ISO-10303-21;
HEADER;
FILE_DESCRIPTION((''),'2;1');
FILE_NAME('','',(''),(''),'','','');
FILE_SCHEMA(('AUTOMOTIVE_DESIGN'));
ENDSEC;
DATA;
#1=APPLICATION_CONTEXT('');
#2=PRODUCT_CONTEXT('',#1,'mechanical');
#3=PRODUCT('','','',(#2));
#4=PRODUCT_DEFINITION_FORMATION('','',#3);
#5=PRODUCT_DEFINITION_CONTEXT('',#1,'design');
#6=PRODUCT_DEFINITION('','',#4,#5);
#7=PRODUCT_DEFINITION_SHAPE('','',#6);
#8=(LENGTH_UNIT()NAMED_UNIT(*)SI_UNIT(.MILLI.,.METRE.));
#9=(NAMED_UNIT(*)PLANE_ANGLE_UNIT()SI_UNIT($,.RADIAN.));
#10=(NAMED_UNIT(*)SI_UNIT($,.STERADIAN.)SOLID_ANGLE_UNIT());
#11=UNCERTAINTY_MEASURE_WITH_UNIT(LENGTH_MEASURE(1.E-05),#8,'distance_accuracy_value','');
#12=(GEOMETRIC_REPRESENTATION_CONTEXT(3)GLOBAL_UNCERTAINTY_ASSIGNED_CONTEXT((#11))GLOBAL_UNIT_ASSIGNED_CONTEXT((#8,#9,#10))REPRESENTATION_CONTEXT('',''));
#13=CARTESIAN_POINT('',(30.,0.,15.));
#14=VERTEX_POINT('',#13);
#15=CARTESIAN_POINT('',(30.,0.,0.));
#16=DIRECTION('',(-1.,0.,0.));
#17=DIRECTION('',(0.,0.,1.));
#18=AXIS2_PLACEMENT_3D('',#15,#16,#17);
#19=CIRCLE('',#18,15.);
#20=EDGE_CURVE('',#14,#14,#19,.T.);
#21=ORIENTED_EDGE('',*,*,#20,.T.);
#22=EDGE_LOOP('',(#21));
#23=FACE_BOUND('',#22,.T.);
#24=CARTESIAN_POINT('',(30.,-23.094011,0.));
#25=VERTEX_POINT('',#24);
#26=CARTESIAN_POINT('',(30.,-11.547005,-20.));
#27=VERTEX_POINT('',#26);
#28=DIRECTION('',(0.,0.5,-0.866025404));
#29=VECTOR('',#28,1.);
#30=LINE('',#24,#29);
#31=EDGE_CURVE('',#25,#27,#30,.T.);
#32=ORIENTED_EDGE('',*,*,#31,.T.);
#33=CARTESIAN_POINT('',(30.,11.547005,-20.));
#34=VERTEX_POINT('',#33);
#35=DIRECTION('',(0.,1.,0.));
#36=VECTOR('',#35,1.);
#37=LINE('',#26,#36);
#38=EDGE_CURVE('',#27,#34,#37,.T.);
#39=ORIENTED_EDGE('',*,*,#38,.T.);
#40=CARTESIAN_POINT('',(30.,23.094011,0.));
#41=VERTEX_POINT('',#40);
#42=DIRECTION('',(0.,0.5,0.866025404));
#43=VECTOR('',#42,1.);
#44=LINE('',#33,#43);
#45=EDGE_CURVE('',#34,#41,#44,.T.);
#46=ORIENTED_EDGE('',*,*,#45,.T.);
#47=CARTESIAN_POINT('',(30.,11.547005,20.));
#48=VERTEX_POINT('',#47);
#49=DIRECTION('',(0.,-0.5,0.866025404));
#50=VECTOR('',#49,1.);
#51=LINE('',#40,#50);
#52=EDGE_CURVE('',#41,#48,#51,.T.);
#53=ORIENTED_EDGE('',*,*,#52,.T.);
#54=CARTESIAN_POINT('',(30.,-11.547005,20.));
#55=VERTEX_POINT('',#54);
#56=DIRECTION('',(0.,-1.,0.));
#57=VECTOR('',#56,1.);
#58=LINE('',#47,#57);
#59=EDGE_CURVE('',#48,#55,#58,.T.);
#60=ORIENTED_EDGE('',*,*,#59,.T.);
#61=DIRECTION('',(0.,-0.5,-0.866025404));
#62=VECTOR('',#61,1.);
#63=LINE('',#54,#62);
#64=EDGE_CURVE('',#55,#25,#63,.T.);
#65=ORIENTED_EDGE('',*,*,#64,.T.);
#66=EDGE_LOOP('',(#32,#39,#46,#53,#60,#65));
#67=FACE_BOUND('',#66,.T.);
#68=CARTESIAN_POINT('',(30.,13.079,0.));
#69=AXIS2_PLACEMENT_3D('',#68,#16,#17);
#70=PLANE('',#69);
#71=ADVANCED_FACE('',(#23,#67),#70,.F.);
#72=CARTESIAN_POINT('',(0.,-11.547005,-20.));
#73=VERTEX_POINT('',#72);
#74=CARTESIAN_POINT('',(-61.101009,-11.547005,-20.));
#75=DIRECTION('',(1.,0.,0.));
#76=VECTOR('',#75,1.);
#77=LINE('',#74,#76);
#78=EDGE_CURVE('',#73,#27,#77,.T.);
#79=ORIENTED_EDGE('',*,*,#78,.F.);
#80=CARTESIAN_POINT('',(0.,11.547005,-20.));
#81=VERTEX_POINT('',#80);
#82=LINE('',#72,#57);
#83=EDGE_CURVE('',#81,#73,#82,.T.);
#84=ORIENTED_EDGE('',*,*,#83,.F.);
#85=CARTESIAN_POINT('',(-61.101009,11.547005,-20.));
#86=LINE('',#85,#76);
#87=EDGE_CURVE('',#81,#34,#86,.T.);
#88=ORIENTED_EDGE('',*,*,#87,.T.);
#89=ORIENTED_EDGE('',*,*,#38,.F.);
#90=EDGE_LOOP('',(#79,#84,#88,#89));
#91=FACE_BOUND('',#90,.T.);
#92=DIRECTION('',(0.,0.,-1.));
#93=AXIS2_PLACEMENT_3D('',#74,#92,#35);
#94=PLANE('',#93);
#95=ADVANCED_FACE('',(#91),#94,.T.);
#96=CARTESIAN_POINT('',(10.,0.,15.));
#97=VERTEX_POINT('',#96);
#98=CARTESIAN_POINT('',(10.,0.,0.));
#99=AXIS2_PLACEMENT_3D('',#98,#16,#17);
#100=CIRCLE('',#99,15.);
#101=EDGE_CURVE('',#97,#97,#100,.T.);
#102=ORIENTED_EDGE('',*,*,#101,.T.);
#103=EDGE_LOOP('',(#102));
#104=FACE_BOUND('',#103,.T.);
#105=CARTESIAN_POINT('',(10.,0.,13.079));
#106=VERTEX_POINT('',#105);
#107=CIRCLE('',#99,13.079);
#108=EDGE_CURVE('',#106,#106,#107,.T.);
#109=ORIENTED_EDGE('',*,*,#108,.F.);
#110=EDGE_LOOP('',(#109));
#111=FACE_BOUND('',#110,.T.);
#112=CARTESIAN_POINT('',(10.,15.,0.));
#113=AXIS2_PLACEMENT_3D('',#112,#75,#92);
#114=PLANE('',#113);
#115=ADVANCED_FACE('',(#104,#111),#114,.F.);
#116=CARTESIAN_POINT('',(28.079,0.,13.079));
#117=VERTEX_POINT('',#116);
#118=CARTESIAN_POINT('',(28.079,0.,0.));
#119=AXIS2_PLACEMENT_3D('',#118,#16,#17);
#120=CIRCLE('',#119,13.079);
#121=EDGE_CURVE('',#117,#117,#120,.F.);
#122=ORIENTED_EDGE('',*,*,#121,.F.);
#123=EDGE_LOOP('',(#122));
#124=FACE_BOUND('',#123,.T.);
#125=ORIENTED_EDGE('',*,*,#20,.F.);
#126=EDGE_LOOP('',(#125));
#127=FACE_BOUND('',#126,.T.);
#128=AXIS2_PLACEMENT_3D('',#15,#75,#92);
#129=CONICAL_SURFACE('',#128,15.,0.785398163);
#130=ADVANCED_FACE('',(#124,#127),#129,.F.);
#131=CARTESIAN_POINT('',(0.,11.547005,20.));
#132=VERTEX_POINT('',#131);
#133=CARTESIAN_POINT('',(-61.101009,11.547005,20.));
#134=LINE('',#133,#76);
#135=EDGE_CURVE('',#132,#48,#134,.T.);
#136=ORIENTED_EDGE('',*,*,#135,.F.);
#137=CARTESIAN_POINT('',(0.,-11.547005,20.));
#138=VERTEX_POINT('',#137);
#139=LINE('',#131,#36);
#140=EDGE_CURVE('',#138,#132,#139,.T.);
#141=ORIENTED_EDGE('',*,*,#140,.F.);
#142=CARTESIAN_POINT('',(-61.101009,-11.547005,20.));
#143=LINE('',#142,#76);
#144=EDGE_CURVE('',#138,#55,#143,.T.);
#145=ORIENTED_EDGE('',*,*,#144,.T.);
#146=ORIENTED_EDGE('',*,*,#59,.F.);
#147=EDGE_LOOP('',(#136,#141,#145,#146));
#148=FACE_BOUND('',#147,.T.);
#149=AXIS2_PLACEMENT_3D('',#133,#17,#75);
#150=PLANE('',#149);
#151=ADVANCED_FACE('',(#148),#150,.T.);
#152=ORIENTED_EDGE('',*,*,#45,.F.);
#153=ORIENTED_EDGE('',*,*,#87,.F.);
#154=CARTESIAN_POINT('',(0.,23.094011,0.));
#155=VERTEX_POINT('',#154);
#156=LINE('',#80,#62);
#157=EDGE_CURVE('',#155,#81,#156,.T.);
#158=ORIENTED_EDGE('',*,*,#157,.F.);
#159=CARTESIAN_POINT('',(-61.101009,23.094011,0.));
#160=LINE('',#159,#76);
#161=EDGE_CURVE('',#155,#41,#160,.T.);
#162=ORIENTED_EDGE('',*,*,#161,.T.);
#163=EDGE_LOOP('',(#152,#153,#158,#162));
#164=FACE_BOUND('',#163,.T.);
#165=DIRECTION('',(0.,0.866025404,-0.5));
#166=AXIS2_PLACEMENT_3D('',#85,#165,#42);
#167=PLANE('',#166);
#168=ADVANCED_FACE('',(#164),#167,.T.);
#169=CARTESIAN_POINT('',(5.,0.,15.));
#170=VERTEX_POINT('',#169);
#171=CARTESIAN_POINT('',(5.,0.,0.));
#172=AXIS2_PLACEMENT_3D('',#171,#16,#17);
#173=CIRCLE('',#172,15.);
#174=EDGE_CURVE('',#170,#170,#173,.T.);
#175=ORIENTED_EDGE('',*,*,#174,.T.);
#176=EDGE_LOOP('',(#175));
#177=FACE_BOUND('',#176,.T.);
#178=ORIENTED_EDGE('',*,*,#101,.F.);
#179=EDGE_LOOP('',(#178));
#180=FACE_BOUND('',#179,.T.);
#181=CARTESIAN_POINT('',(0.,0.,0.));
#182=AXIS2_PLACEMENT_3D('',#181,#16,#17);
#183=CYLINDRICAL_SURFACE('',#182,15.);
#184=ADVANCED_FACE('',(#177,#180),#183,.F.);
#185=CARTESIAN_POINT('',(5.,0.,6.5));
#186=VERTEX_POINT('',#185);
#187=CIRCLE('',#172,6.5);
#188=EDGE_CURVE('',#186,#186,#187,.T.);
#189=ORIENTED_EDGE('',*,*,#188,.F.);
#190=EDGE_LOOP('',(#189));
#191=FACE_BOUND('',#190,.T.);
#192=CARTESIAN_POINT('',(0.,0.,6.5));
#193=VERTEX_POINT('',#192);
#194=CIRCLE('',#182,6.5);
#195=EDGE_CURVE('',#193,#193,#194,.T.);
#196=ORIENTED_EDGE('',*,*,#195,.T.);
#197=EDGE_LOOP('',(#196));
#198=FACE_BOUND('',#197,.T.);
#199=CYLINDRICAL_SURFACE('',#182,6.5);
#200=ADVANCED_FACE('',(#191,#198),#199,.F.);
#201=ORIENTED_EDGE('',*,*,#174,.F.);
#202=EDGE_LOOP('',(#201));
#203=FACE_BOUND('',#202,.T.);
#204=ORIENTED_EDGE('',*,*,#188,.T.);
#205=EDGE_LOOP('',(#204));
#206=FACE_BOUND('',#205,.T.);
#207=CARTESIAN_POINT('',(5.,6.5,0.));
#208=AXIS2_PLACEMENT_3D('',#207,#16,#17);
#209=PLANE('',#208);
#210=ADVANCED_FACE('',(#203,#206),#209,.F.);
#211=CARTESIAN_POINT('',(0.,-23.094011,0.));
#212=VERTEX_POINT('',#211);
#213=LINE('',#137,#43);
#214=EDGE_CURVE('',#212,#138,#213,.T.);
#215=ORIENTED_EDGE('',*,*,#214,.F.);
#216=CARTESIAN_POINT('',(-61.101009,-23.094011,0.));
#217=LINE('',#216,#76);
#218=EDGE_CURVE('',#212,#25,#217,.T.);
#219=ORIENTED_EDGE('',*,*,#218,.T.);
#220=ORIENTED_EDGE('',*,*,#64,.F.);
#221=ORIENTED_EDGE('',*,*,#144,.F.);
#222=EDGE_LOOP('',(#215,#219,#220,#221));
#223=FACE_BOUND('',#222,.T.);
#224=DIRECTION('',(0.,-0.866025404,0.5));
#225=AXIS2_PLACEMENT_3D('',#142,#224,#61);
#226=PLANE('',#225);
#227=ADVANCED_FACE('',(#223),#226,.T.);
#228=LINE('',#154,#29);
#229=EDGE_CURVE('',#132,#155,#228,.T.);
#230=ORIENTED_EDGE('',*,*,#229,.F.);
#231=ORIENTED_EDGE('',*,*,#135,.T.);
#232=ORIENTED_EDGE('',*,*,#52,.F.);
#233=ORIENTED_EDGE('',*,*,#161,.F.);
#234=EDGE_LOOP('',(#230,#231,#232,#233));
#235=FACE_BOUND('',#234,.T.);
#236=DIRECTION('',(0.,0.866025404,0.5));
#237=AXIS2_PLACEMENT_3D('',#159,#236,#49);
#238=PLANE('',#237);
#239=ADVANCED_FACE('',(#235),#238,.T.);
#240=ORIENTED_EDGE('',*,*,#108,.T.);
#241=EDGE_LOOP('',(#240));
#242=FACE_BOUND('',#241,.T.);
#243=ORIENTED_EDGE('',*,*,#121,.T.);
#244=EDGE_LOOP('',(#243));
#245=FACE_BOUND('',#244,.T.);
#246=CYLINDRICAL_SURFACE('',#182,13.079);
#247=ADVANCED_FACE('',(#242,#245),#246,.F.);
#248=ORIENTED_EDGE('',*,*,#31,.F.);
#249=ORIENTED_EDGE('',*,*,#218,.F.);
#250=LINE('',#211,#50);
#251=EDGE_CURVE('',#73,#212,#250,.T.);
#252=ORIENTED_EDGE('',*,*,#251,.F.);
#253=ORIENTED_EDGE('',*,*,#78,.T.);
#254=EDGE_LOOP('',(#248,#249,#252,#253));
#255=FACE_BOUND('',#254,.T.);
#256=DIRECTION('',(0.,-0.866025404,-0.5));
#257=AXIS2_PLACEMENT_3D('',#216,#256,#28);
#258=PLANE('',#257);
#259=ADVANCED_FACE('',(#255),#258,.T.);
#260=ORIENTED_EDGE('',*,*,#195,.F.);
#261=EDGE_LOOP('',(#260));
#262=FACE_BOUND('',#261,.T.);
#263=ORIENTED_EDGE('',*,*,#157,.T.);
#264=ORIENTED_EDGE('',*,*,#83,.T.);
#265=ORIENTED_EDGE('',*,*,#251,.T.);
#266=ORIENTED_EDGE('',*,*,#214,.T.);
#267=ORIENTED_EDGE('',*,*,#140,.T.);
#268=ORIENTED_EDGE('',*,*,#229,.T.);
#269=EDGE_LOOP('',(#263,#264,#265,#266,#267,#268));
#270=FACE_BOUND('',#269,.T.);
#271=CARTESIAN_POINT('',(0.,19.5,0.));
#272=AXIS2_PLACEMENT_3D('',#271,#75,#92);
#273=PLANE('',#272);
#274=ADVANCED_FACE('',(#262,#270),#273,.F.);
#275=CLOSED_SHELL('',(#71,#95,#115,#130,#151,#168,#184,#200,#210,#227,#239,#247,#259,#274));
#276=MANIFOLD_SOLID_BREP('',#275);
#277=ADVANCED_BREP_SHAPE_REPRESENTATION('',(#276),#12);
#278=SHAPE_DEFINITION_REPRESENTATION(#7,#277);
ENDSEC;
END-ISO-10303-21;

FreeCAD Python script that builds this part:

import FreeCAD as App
import Part
import Sketcher
Q = App.Units.Quantity


def edges_at(feature, points):
    """Names of the edges that pass closest to the given points."""
    edges = feature.Shape.Edges
    near = lambda p: min(range(len(edges)), key=lambda i: edges[i].distToShape(Part.Vertex(*p))[0])
    return sorted({f"Edge{near(p) + 1}" for p in points})


def add_polygon(sketch, points):
    """Adds a closed chain of lines whose ends are joined by coincident constraints."""
    first, n = sketch.GeometryCount, len(points)
    for a, b in zip(points, points[1:] + points[:1]):
        sketch.addGeometry(Part.LineSegment(App.Vector(*a, 0), App.Vector(*b, 0)), False)
    for i in range(n):
        sketch.addConstraint(Sketcher.Constraint("Coincident", first + i, 2, first + (i + 1) % n, 1))

doc = App.newDocument("Part")
body = doc.addObject("PartDesign::Body", "Body")

# Sketch on XY plane
sketch1 = body.newObject("Sketcher::SketchObject", "Sketch")
sketch1.AttachmentSupport = (doc.getObject("XY_Plane"), [""])
sketch1.MapMode = "FlatFace"
add_polygon(sketch1, [(0, 6.5), (5, 6.5), (5, 15), (10, 15), (10, 13.1), (30, 13.1), (30, 19.5), (0, 19.5)])  # lines 0-7
sketch1.addConstraint([
    Sketcher.Constraint("Horizontal", 0),
    Sketcher.Constraint("Vertical", 1),
    Sketcher.Constraint("Horizontal", 2),
    Sketcher.Constraint("Vertical", 3),
    Sketcher.Constraint("Horizontal", 4),
    Sketcher.Constraint("Vertical", 5),
    Sketcher.Constraint("Horizontal", 6),
    Sketcher.Constraint("Vertical", 7),
    Sketcher.Constraint("PointOnObject", 6, 2, -2),
    Sketcher.Constraint("Equal", 0, 2),
    Sketcher.Constraint("DistanceX", 0, 1, 0, 2, Q("5 mm")),
    Sketcher.Constraint("DistanceX", 4, 1, 4, 2, Q("20 mm")),
    Sketcher.Constraint("DistanceY", 7, 2, 7, 1, Q("13 mm")),
    Sketcher.Constraint("DistanceY", 1, 1, 1, 2, Q("8.5 mm")),
    Sketcher.Constraint("DistanceY", -1, 1, 1, 2, Q("15 mm")),
    Sketcher.Constraint("DistanceY", 3, 2, 3, 1, Q("1.921 mm")),
])
revolution = body.newObject("PartDesign::Revolution", "Revolution")
revolution.Profile = sketch1
revolution.ReferenceAxis = (sketch1, ["H_Axis"])
revolution.Angle = 360
doc.recompute()

chamfer = body.newObject("PartDesign::Chamfer", "Chamfer")
chamfer.Base = (revolution, edges_at(revolution, [(30, -13.079, 0)]))
chamfer.Size = 1.921

# Sketch on YZ plane
sketch2 = body.newObject("Sketcher::SketchObject", "Sketch001")
sketch2.AttachmentSupport = (doc.getObject("YZ_Plane"), [""])
sketch2.MapMode = "FlatFace"
sketch2.AttachmentOffset = App.Placement(App.Vector(0, 0, 30), App.Rotation())
add_polygon(sketch2, [(23, 0), (12, 20), (-12, 20), (-23, 0), (-12, -20), (12, -20)])  # lines 0-5
sketch2.addGeometry(Part.Circle(App.Vector(0, 0, 0), App.Vector(0, 0, 1), 20), False)  # 6
sketch2.addConstraint([
    Sketcher.Constraint("Horizontal", 1),
    Sketcher.Constraint("Horizontal", 4),
    Sketcher.Constraint("Coincident", 6, 3, -1, 1),
    Sketcher.Constraint("Symmetric", 0, 2, 3, 2, -1, 1),
    Sketcher.Constraint("Symmetric", 2, 2, 5, 2, -1, 1),
    Sketcher.Constraint("PointOnObject", 2, 2, -1),
    Sketcher.Constraint("Parallel", 2, 5),
    Sketcher.Constraint("Vertical", 1, 2, 3, 2),
    Sketcher.Constraint("Diameter", 6, Q("39 mm")),
    Sketcher.Constraint("Angle", 0, Q("120 deg")),
    Sketcher.Constraint("DistanceY", -1, 1, 0, 2, Q("20 mm")),
    Sketcher.Constraint("DistanceX", 1, 2, 1, 1, Q("23.094011 mm")),
])
pad1 = body.newObject("PartDesign::Pad", "Pad")
pad1.Profile = sketch2
pad1.Length = 30
pad1.Reversed = True

doc.recompute()
